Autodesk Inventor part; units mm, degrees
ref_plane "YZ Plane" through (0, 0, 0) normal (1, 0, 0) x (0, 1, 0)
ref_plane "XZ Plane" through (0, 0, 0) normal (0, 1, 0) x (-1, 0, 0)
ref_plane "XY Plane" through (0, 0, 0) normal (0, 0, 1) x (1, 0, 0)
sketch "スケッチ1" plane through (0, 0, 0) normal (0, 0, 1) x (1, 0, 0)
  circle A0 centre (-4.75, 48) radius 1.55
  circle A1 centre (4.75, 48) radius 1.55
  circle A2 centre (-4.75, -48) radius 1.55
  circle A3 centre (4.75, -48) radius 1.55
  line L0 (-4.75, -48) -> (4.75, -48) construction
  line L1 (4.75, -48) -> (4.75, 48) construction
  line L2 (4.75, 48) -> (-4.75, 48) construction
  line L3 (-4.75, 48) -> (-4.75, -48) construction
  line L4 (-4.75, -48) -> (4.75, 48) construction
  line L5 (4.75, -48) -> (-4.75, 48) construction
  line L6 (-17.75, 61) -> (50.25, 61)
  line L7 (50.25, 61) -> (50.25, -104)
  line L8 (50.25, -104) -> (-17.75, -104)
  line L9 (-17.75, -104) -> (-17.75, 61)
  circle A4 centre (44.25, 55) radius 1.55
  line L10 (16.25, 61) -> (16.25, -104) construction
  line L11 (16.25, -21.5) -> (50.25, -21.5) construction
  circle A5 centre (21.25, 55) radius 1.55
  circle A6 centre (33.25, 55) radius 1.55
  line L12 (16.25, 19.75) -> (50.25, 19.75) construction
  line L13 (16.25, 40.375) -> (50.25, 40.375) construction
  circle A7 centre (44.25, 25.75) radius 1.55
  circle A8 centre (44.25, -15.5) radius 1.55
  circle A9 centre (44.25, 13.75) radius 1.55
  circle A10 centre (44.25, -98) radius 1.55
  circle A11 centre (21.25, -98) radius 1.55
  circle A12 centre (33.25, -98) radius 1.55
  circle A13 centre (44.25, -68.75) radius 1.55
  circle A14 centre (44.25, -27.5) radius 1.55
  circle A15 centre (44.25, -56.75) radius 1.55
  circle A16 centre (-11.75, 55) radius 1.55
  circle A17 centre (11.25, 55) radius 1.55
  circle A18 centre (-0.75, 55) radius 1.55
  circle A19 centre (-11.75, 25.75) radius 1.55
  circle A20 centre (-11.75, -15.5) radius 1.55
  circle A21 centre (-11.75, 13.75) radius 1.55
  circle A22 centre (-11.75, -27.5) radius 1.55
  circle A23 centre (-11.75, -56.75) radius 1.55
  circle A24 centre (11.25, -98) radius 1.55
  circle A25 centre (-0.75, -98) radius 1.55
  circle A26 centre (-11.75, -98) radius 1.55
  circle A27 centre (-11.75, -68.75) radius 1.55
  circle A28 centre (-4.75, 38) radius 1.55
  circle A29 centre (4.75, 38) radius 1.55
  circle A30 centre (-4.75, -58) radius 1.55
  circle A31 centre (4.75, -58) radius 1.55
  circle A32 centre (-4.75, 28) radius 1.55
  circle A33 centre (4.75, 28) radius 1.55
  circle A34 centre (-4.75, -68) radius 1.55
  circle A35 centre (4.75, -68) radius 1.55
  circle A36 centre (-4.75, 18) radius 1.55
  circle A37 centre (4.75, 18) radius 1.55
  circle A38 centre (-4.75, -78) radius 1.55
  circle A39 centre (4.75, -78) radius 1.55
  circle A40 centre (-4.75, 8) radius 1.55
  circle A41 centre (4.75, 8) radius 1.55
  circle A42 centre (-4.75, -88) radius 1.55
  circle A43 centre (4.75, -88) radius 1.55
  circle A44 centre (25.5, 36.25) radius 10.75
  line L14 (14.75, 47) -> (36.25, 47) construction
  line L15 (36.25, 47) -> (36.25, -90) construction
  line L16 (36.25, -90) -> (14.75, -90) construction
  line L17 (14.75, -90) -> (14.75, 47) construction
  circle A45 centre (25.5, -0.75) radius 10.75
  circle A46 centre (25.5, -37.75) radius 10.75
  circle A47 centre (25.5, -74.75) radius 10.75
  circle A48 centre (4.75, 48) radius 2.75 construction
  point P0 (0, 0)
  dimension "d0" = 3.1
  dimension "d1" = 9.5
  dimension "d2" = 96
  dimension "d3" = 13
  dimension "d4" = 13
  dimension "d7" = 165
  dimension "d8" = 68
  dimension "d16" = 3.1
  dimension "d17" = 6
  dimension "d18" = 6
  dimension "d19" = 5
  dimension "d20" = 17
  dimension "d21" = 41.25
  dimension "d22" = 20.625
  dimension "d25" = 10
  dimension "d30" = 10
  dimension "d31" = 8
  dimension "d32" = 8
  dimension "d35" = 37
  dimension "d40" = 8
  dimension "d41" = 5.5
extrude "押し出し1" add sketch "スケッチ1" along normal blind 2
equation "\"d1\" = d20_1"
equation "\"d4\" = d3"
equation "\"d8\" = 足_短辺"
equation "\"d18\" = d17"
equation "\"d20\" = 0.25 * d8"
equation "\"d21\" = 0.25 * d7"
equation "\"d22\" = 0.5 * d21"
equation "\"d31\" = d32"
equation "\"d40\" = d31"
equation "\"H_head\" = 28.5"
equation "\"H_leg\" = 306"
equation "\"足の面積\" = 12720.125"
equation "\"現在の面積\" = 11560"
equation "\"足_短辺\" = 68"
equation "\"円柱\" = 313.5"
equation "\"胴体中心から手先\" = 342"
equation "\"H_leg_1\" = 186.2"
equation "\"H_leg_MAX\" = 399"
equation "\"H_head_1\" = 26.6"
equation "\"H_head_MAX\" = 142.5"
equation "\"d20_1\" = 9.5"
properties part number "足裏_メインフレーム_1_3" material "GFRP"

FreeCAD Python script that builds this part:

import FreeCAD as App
import Part
import Sketcher
from FreeCAD import Vector
Q = App.Units.Quantity


def add_polygon(sketch, points):
    """Adds a closed chain of lines whose ends are joined by coincident constraints."""
    first, n = sketch.GeometryCount, len(points)
    for a, b in zip(points, points[1:] + points[:1]):
        sketch.addGeometry(Part.LineSegment(App.Vector(*a, 0), App.Vector(*b, 0)), False)
    for i in range(n):
        sketch.addConstraint(Sketcher.Constraint("Coincident", first + i, 2, first + (i + 1) % n, 1))

doc = App.newDocument("Part")
body = doc.addObject("PartDesign::Body", "Body")

# Sketch on XY plane
sketch1 = body.newObject("Sketcher::SketchObject", "Sketch")
sketch1.AttachmentSupport = (doc.getObject("XY_Plane"), [""])
sketch1.MapMode = "FlatFace"
add_polygon(sketch1, [(50.2, 61), (-17.8, 61), (-17.8, -104), (50.2, -104)])  # lines 0-3
sketch1.addGeometry(Part.Circle(Vector(-11.8, -98, 0), Vector(0, 0, 1), 1.6), False)  # 4
sketch1.addGeometry(Part.Circle(Vector(-4.8, -88, 0), Vector(0, 0, 1), 1.6), False)  # 5
sketch1.addGeometry(Part.Circle(Vector(-11.8, -68.8, 0), Vector(0, 0, 1), 1.6), False)  # 6
sketch1.addGeometry(Part.Circle(Vector(-4.8, -78, 0), Vector(0, 0, 1), 1.6), False)  # 7
sketch1.addGeometry(Part.Circle(Vector(-4.8, -68, 0), Vector(0, 0, 1), 1.6), False)  # 8
sketch1.addGeometry(Part.Circle(Vector(-0.8, -98, 0), Vector(0, 0, 1), 1.6), False)  # 9
sketch1.addGeometry(Part.Circle(Vector(4.8, -88, 0), Vector(0, 0, 1), 1.6), False)  # 10
sketch1.addGeometry(Part.Circle(Vector(11.2, -98, 0), Vector(0, 0, 1), 1.6), False)  # 11
sketch1.addGeometry(Part.Circle(Vector(4.8, -78, 0), Vector(0, 0, 1), 1.6), False)  # 12
sketch1.addGeometry(Part.Circle(Vector(4.8, -68, 0), Vector(0, 0, 1), 1.6), False)  # 13
sketch1.addGeometry(Part.Circle(Vector(-11.8, -56.8, 0), Vector(0, 0, 1), 1.6), False)  # 14
sketch1.addGeometry(Part.Circle(Vector(-4.8, -58, 0), Vector(0, 0, 1), 1.6), False)  # 15
sketch1.addGeometry(Part.Circle(Vector(-4.8, -48, 0), Vector(0, 0, 1), 1.6), False)  # 16
sketch1.addGeometry(Part.Circle(Vector(-11.8, -27.5, 0), Vector(0, 0, 1), 1.6), False)  # 17
sketch1.addGeometry(Part.Circle(Vector(4.8, -58, 0), Vector(0, 0, 1), 1.6), False)  # 18
sketch1.addGeometry(Part.Circle(Vector(4.8, -48, 0), Vector(0, 0, 1), 1.6), False)  # 19
sketch1.addGeometry(Part.Circle(Vector(21.2, -98, 0), Vector(0, 0, 1), 1.6), False)  # 20
sketch1.addGeometry(Part.Circle(Vector(25.5, -74.8, 0), Vector(0, 0, 1), 10.8), False)  # 21
sketch1.addGeometry(Part.Circle(Vector(33.2, -98, 0), Vector(0, 0, 1), 1.6), False)  # 22
sketch1.addGeometry(Part.Circle(Vector(44.2, -98, 0), Vector(0, 0, 1), 1.6), False)  # 23
sketch1.addGeometry(Part.Circle(Vector(44.2, -68.8, 0), Vector(0, 0, 1), 1.6), False)  # 24
sketch1.addGeometry(Part.Circle(Vector(25.5, -37.8, 0), Vector(0, 0, 1), 10.8), False)  # 25
sketch1.addGeometry(Part.Circle(Vector(44.2, -56.8, 0), Vector(0, 0, 1), 1.6), False)  # 26
sketch1.addGeometry(Part.Circle(Vector(44.2, -27.5, 0), Vector(0, 0, 1), 1.6), False)  # 27
sketch1.addGeometry(Part.Circle(Vector(-11.8, -15.5, 0), Vector(0, 0, 1), 1.6), False)  # 28
sketch1.addGeometry(Part.Circle(Vector(-11.8, 13.8, 0), Vector(0, 0, 1), 1.6), False)  # 29
sketch1.addGeometry(Part.Circle(Vector(-4.8, 8, 0), Vector(0, 0, 1), 1.6), False)  # 30
sketch1.addGeometry(Part.Circle(Vector(-4.8, 18, 0), Vector(0, 0, 1), 1.6), False)  # 31
sketch1.addGeometry(Part.Circle(Vector(4.8, 8, 0), Vector(0, 0, 1), 1.6), False)  # 32
sketch1.addGeometry(Part.Circle(Vector(4.8, 18, 0), Vector(0, 0, 1), 1.6), False)  # 33
sketch1.addGeometry(Part.Circle(Vector(-11.8, 25.8, 0), Vector(0, 0, 1), 1.6), False)  # 34
sketch1.addGeometry(Part.Circle(Vector(-4.8, 28, 0), Vector(0, 0, 1), 1.6), False)  # 35
sketch1.addGeometry(Part.Circle(Vector(-4.8, 38, 0), Vector(0, 0, 1), 1.6), False)  # 36
sketch1.addGeometry(Part.Circle(Vector(-11.8, 55, 0), Vector(0, 0, 1), 1.6), False)  # 37
sketch1.addGeometry(Part.Circle(Vector(-4.8, 48, 0), Vector(0, 0, 1), 1.6), False)  # 38
sketch1.addGeometry(Part.Circle(Vector(4.8, 28, 0), Vector(0, 0, 1), 1.6), False)  # 39
sketch1.addGeometry(Part.Circle(Vector(4.8, 38, 0), Vector(0, 0, 1), 1.6), False)  # 40
sketch1.addGeometry(Part.Circle(Vector(4.8, 48, 0), Vector(0, 0, 1), 1.6), False)  # 41
sketch1.addGeometry(Part.Circle(Vector(-0.8, 55, 0), Vector(0, 0, 1), 1.6), False)  # 42
sketch1.addGeometry(Part.Circle(Vector(11.2, 55, 0), Vector(0, 0, 1), 1.6), False)  # 43
sketch1.addGeometry(Part.Circle(Vector(25.5, -0.8, 0), Vector(0, 0, 1), 10.8), False)  # 44
sketch1.addGeometry(Part.Circle(Vector(44.2, -15.5, 0), Vector(0, 0, 1), 1.6), False)  # 45
sketch1.addGeometry(Part.Circle(Vector(44.2, 13.8, 0), Vector(0, 0, 1), 1.6), False)  # 46
sketch1.addGeometry(Part.Circle(Vector(25.5, 36.2, 0), Vector(0, 0, 1), 10.8), False)  # 47
sketch1.addGeometry(Part.Circle(Vector(21.2, 55, 0), Vector(0, 0, 1), 1.6), False)  # 48
sketch1.addGeometry(Part.Circle(Vector(44.2, 25.8, 0), Vector(0, 0, 1), 1.6), False)  # 49
sketch1.addGeometry(Part.Circle(Vector(33.2, 55, 0), Vector(0, 0, 1), 1.6), False)  # 50
sketch1.addGeometry(Part.Circle(Vector(44.2, 55, 0), Vector(0, 0, 1), 1.6), False)  # 51
sketch1.addConstraint([
    Sketcher.Constraint("Horizontal", 0),
    Sketcher.Constraint("Vertical", 1),
    Sketcher.Constraint("Horizontal", 2),
    Sketcher.Constraint("Vertical", 3),
    Sketcher.Constraint("Equal", 4, 5),
    Sketcher.Constraint("Equal", 5, 6),
    Sketcher.Constraint("Equal", 6, 7),
    Sketcher.Constraint("Equal", 7, 8),
    Sketcher.Constraint("Equal", 8, 9),
    Sketcher.Constraint("Equal", 9, 10),
    Sketcher.Constraint("Equal", 10, 11),
    Sketcher.Constraint("Equal", 11, 12),
    Sketcher.Constraint("Equal", 12, 13),
    Sketcher.Constraint("Equal", 13, 14),
    Sketcher.Constraint("Equal", 14, 15),
    Sketcher.Constraint("Equal", 15, 16),
    Sketcher.Constraint("Equal", 16, 17),
    Sketcher.Constraint("Equal", 17, 18),
    Sketcher.Constraint("Equal", 18, 19),
    Sketcher.Constraint("Equal", 19, 20),
    Sketcher.Constraint("Equal", 20, 22),
    Sketcher.Constraint("Equal", 22, 23),
    Sketcher.Constraint("Equal", 23, 24),
    Sketcher.Constraint("Equal", 21, 25),
    Sketcher.Constraint("Equal", 24, 26),
    Sketcher.Constraint("Equal", 26, 27),
    Sketcher.Constraint("Equal", 27, 28),
    Sketcher.Constraint("Equal", 28, 29),
    Sketcher.Constraint("Equal", 29, 30),
    Sketcher.Constraint("Equal", 30, 31),
    Sketcher.Constraint("Equal", 31, 32),
    Sketcher.Constraint("Equal", 32, 33),
    Sketcher.Constraint("Equal", 33, 34),
    Sketcher.Constraint("Equal", 34, 35),
    Sketcher.Constraint("Equal", 35, 36),
    Sketcher.Constraint("Equal", 36, 37),
    Sketcher.Constraint("Equal", 37, 38),
    Sketcher.Constraint("Equal", 38, 39),
    Sketcher.Constraint("Equal", 39, 40),
    Sketcher.Constraint("Equal", 40, 41),
    Sketcher.Constraint("Equal", 41, 42),
    Sketcher.Constraint("Equal", 42, 43),
    Sketcher.Constraint("Equal", 25, 44),
    Sketcher.Constraint("Equal", 43, 45),
    Sketcher.Constraint("Equal", 45, 46),
    Sketcher.Constraint("Equal", 44, 47),
    Sketcher.Constraint("Equal", 46, 48),
    Sketcher.Constraint("Equal", 48, 49),
    Sketcher.Constraint("Equal", 49, 50),
    Sketcher.Constraint("Equal", 50, 51),
    Sketcher.Constraint("Symmetric", 19, 3, 38, 3, -1, 1),
    Sketcher.Constraint("Symmetric", 16, 3, 41, 3, -1, 1),
    Sketcher.Constraint("Symmetric", 5, 3, 10, 3, -2),
    Sketcher.Constraint("Symmetric", 7, 3, 12, 3, -2),
    Sketcher.Constraint("Symmetric", 8, 3, 13, 3, -2),
    Sketcher.Constraint("Symmetric", 15, 3, 18, 3, -2),
    Sketcher.Constraint("Symmetric", 16, 3, 19, 3, -2),
    Sketcher.Constraint("Symmetric", 30, 3, 32, 3, -2),
    Sketcher.Constraint("Symmetric", 31, 3, 33, 3, -2),
    Sketcher.Constraint("Symmetric", 35, 3, 39, 3, -2),
    Sketcher.Constraint("Symmetric", 36, 3, 40, 3, -2),
    Sketcher.Constraint("Horizontal", 4, 3, 9, 3),
    Sketcher.Constraint("Horizontal", 9, 3, 11, 3),
    Sketcher.Constraint("Horizontal", 11, 3, 20, 3),
    Sketcher.Constraint("Horizontal", 20, 3, 22, 3),
    Sketcher.Constraint("Horizontal", 22, 3, 23, 3),
    Sketcher.Constraint("Horizontal", 6, 3, 24, 3),
    Sketcher.Constraint("Horizontal", 14, 3, 26, 3),
    Sketcher.Constraint("Horizontal", 17, 3, 27, 3),
    Sketcher.Constraint("Horizontal", 37, 3, 42, 3),
    Sketcher.Constraint("Horizontal", 42, 3, 43, 3),
    Sketcher.Constraint("Horizontal", 28, 3, 45, 3),
    Sketcher.Constraint("Horizontal", 29, 3, 46, 3),
    Sketcher.Constraint("Horizontal", 43, 3, 48, 3),
    Sketcher.Constraint("Horizontal", 34, 3, 49, 3),
    Sketcher.Constraint("Horizontal", 48, 3, 50, 3),
    Sketcher.Constraint("Horizontal", 50, 3, 51, 3),
    Sketcher.Constraint("Vertical", 4, 3, 6, 3),
    Sketcher.Constraint("Vertical", 5, 3, 7, 3),
    Sketcher.Constraint("Vertical", 7, 3, 8, 3),
    Sketcher.Constraint("Vertical", 6, 3, 14, 3),
    Sketcher.Constraint("Vertical", 8, 3, 15, 3),
    Sketcher.Constraint("Vertical", 15, 3, 16, 3),
    Sketcher.Constraint("Vertical", 14, 3, 17, 3),
    Sketcher.Constraint("Vertical", 23, 3, 24, 3),
    Sketcher.Constraint("Vertical", 21, 3, 25, 3),
    Sketcher.Constraint("Vertical", 24, 3, 26, 3),
    Sketcher.Constraint("Vertical", 26, 3, 27, 3),
    Sketcher.Constraint("Vertical", 17, 3, 28, 3),
    Sketcher.Constraint("Vertical", 28, 3, 29, 3),
    Sketcher.Constraint("Vertical", 16, 3, 30, 3),
    Sketcher.Constraint("Vertical", 30, 3, 31, 3),
    Sketcher.Constraint("Vertical", 29, 3, 34, 3),
    Sketcher.Constraint("Vertical", 31, 3, 35, 3),
    Sketcher.Constraint("Vertical", 35, 3, 36, 3),
    Sketcher.Constraint("Vertical", 34, 3, 37, 3),
    Sketcher.Constraint("Vertical", 9, 3, 42, 3),
    Sketcher.Constraint("Vertical", 11, 3, 43, 3),
    Sketcher.Constraint("Vertical", 25, 3, 44, 3),
    Sketcher.Constraint("Vertical", 27, 3, 45, 3),
    Sketcher.Constraint("Vertical", 45, 3, 46, 3),
    Sketcher.Constraint("Vertical", 44, 3, 47, 3),
    Sketcher.Constraint("Vertical", 20, 3, 48, 3),
    Sketcher.Constraint("Vertical", 46, 3, 49, 3),
    Sketcher.Constraint("Vertical", 22, 3, 50, 3),
    Sketcher.Constraint("Vertical", 49, 3, 51, 3),
    Sketcher.Constraint("Diameter", 4, Q("3.1 mm")),
    Sketcher.Constraint("DistanceX", 0, 2, 0, 1, Q("68 mm")),
    Sketcher.Constraint("DistanceY", 1, 2, 1, 1, Q("165 mm")),
    Sketcher.Constraint("DistanceY", 8, 3, -1, 1, Q("68 mm")),
    Sketcher.Constraint("DistanceY", -1, 1, 30, 3, Q("8 mm")),
    Sketcher.Constraint("DistanceY", 4, 3, 5, 3, Q("10 mm")),
    Sketcher.Constraint("DistanceY", 5, 3, 7, 3, Q("10 mm")),
    Sketcher.Constraint("DistanceY", 7, 3, 8, 3, Q("10 mm")),
    Sketcher.Constraint("DistanceY", 8, 3, 15, 3, Q("10 mm")),
    Sketcher.Constraint("DistanceY", 15, 3, 16, 3, Q("10 mm")),
    Sketcher.Constraint("DistanceX", 11, 3, 20, 3, Q("10 mm")),
    Sketcher.Constraint("DistanceY", 21, 3, 24, 3, Q("6 mm")),
    Sketcher.Constraint("DistanceY", 30, 3, 31, 3, Q("10 mm")),
    Sketcher.Constraint("DistanceY", 31, 3, 35, 3, Q("10 mm")),
    Sketcher.Constraint("DistanceY", 35, 3, 36, 3, Q("10 mm")),
    Sketcher.Constraint("DistanceY", 36, 3, 37, 3, Q("17 mm")),
    Sketcher.Constraint("DistanceX", 0, 2, 37, 3, Q("6 mm")),
    Sketcher.Constraint("DistanceY", 37, 3, 0, 2, Q("6 mm")),
    Sketcher.Constraint("DistanceX", 0, 2, 42, 3, Q("17 mm")),
    Sketcher.Constraint("DistanceX", 0, 2, 38, 3, Q("13 mm")),
    Sketcher.Constraint("DistanceX", 23, 3, 2, 2, Q("6 mm")),
    Sketcher.Constraint("DistanceX", 22, 3, 2, 2, Q("17 mm")),
    Sketcher.Constraint("Diameter", 21, Q("21.5 mm")),
    Sketcher.Constraint("DistanceX", 5, 3, 10, 3, Q("9.5 mm")),
    Sketcher.Constraint("DistanceY", 6, 3, 17, 3, Q("41.25 mm")),
    Sketcher.Constraint("DistanceY", 14, 3, 28, 3, Q("41.25 mm")),
    Sketcher.Constraint("DistanceY", 17, 3, 29, 3, Q("41.25 mm")),
    Sketcher.Constraint("DistanceX", 9, 3, 11, 3, Q("12 mm")),
    Sketcher.Constraint("DistanceY", 6, 3, 14, 3, Q("12 mm")),
    Sketcher.Constraint("DistanceY", 24, 3, 25, 3, Q("31 mm")),
    Sketcher.Constraint("DistanceY", 29, 3, 34, 3, Q("12 mm")),
    Sketcher.Constraint("DistanceY", 17, 3, -1, 1, Q("27.5 mm")),
    Sketcher.Constraint("DistanceX", -1, 1, 21, 3, Q("25.5 mm")),
    Sketcher.Constraint("DistanceY", 44, 3, 46, 3, Q("14.5 mm")),
    Sketcher.Constraint("DistanceY", 49, 3, 47, 3, Q("10.5 mm")),
])
pad1 = body.newObject("PartDesign::Pad", "Pad")
pad1.Profile = sketch1
pad1.Length = 2

doc.recompute()
